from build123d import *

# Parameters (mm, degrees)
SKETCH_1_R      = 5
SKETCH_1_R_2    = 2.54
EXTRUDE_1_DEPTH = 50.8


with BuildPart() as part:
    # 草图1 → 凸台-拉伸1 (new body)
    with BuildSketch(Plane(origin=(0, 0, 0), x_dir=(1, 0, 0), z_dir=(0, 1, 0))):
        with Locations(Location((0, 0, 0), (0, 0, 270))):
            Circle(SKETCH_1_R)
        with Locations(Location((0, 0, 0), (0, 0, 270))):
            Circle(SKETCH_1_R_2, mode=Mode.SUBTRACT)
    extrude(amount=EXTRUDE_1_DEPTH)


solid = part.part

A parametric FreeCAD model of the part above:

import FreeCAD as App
import Part
import Sketcher
Q = App.Units.Quantity

doc = App.newDocument("Part")
body = doc.addObject("PartDesign::Body", "Body")

sketch1 = doc.addObject("Sketcher::SketchObject", "Sketch")
body.addObject(sketch1)
sketch1.AttachmentSupport = (doc.XZ_Plane, [""])
sketch1.MapMode = "FlatFace"
sketch1.addGeometry([
    Part.Circle(App.Vector(0, 0, 0), App.Vector(0, 0, 1), 5),
    Part.Circle(App.Vector(0, 0, 0), App.Vector(0, 0, 1), 2.5),
], False)
sketch1.addConstraint([
    Sketcher.Constraint("Coincident", 0, 3, -1, 1),
    Sketcher.Constraint("Coincident", 1, 3, -1, 1),
    Sketcher.Constraint("Diameter", 1, Q("0.2 in")),
    Sketcher.Constraint("Diameter", 0, 10.0),
])
pad1 = doc.addObject("PartDesign::Pad", "Pad")
body.addObject(pad1)
pad1.Profile = sketch1
pad1.Length = Q("2 in")
pad1.Reversed = True

doc.recompute()
